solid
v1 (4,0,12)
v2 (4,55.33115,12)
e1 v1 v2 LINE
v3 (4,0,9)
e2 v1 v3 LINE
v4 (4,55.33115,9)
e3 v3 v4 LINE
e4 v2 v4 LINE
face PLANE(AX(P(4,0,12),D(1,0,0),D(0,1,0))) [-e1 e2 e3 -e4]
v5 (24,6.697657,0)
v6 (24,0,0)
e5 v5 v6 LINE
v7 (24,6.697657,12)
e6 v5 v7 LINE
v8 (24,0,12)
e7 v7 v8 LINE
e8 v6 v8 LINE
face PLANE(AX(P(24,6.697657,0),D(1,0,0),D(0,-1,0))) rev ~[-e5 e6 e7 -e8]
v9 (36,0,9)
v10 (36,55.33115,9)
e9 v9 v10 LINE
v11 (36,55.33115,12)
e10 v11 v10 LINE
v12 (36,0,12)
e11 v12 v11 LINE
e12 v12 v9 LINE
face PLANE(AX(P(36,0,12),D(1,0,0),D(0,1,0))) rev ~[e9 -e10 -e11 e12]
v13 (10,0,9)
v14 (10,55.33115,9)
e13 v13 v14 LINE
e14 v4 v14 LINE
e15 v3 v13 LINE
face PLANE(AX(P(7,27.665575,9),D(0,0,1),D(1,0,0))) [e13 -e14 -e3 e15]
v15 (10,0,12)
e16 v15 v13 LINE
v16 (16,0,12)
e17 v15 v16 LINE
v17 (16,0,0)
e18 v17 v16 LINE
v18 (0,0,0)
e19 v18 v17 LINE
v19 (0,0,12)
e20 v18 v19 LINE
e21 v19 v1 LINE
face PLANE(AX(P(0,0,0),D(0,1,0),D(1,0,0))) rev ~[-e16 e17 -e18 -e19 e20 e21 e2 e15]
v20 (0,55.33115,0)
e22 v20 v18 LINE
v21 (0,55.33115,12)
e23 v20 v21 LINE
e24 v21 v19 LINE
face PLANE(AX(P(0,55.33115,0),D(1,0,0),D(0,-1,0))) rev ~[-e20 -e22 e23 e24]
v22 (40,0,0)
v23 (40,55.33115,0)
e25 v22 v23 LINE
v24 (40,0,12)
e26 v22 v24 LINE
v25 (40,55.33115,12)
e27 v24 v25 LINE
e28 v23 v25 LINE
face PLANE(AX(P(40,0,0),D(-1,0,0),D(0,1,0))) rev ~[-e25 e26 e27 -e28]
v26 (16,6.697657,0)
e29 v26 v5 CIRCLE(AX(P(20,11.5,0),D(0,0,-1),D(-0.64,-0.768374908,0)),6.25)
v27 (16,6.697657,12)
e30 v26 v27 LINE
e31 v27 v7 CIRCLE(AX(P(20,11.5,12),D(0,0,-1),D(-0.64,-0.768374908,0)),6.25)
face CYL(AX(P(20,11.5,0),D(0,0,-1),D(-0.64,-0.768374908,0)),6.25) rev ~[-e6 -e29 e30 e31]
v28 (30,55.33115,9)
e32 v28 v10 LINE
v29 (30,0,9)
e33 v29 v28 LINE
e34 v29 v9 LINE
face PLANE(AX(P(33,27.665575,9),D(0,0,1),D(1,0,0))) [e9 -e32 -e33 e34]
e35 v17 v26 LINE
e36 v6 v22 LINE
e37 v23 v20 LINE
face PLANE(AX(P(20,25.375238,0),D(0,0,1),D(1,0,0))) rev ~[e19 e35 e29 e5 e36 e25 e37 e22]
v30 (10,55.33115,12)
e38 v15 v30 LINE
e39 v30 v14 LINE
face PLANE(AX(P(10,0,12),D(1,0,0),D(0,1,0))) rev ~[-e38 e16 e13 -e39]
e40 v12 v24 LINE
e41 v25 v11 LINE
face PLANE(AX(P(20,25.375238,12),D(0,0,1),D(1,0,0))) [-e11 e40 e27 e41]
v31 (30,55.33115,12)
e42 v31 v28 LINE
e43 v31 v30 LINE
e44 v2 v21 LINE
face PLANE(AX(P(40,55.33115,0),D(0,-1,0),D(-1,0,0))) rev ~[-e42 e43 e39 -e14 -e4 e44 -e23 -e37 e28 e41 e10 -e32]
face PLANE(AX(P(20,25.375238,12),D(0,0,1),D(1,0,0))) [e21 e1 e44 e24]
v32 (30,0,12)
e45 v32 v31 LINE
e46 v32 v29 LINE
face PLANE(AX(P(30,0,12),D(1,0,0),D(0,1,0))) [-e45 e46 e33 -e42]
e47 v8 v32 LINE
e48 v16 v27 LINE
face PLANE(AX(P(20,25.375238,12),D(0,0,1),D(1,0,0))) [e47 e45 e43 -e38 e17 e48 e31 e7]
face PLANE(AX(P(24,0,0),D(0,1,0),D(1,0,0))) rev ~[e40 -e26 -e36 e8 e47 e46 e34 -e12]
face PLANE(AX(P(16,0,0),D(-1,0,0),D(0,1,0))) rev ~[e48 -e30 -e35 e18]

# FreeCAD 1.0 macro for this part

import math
import FreeCAD as App
import Part
import Sketcher

doc = App.newDocument("Part")
body = doc.addObject("PartDesign::Body", "Body")

# Sketch on XY plane
sketch1 = doc.addObject("Sketcher::SketchObject", "Sketch")
body.addObject(sketch1)
sketch1.AttachmentSupport = (doc.XY_Plane, [""])
sketch1.MapMode = "FlatFace"
sketch1.addGeometry([
    Part.LineSegment(App.Vector(0, 55, 0), App.Vector(0, 0, 0)),  # 0
    Part.LineSegment(App.Vector(0, 0, 0), App.Vector(16, 0, 0)),  # 1
    Part.LineSegment(App.Vector(16, 0, 0), App.Vector(16, 7, 0)),  # 2
    Part.ArcOfCircle(Part.Circle(App.Vector(20, 12, 0), App.Vector(0, 0, 1), 6), math.radians(-50), math.radians(230)),  # 3
    Part.LineSegment(App.Vector(24, 7, 0), App.Vector(24, 0, 0)),  # 4
    Part.LineSegment(App.Vector(24, 0, 0), App.Vector(40, 0, 0)),  # 5
    Part.LineSegment(App.Vector(40, 0, 0), App.Vector(40, 55, 0)),  # 6
    Part.LineSegment(App.Vector(40, 55, 0), App.Vector(0, 55, 0)),  # 7
], False)
sketch1.addConstraint([
    Sketcher.Constraint("Coincident", 0, 2, 1, 1),
    Sketcher.Constraint("Coincident", 1, 2, 2, 1),
    Sketcher.Constraint("Coincident", 2, 2, 3, 2),
    Sketcher.Constraint("Coincident", 3, 1, 4, 1),
    Sketcher.Constraint("Coincident", 4, 2, 5, 1),
    Sketcher.Constraint("Coincident", 5, 2, 6, 1),
    Sketcher.Constraint("Coincident", 6, 2, 7, 1),
    Sketcher.Constraint("Coincident", 7, 2, 0, 1),
    Sketcher.Constraint("Vertical", 0),
    Sketcher.Constraint("Horizontal", 1),
    Sketcher.Constraint("Vertical", 2),
    Sketcher.Constraint("Vertical", 4),
    Sketcher.Constraint("Horizontal", 5),
    Sketcher.Constraint("Vertical", 6),
    Sketcher.Constraint("Horizontal", 7),
    Sketcher.Constraint("Coincident", 0, 2, -1, 1),
    Sketcher.Constraint("PointOnObject", 4, 2, -1),
    Sketcher.Constraint("Horizontal", 2, 2, 3, 1),
    Sketcher.Constraint("Equal", 1, 5),
    Sketcher.Constraint("DistanceX", 1, 1, 1, 2, 16.0),
    Sketcher.Constraint("DistanceX", 7, 2, 7, 1, 40.0),
    Sketcher.Constraint("Radius", 3, 6.25),
    Sketcher.Constraint("DistanceY", -1, 1, 3, 3, 11.5),
    Sketcher.Constraint("DistanceY", 0, 2, 0, 1, 55.33115),
])
pad1 = doc.addObject("PartDesign::Pad", "Pad")
body.addObject(pad1)
pad1.Profile = sketch1
pad1.Length = 12

# Sketch on XY plane
sketch2 = doc.addObject("Sketcher::SketchObject", "Sketch001")
body.addObject(sketch2)
sketch2.AttachmentSupport = (doc.XY_Plane, [""])
sketch2.MapMode = "FlatFace"
sketch2.AttachmentOffset = App.Placement(App.Vector(0, 0, 12), App.Rotation())
sketch2.addGeometry([
    Part.LineSegment(App.Vector(4, 55, 0), App.Vector(4, 0, 0)),  # 0
    Part.LineSegment(App.Vector(4, 0, 0), App.Vector(10, 0, 0)),  # 1
    Part.LineSegment(App.Vector(10, 0, 0), App.Vector(10, 55, 0)),  # 2
    Part.LineSegment(App.Vector(10, 55, 0), App.Vector(4, 55, 0)),  # 3
    Part.LineSegment(App.Vector(30, 55, 0), App.Vector(30, 0, 0)),  # 4
    Part.LineSegment(App.Vector(30, 0, 0), App.Vector(36, 0, 0)),  # 5
    Part.LineSegment(App.Vector(36, 0, 0), App.Vector(36, 55, 0)),  # 6
    Part.LineSegment(App.Vector(36, 55, 0), App.Vector(30, 55, 0)),  # 7
], False)
sketch2.addConstraint([
    Sketcher.Constraint("Coincident", 0, 2, 1, 1),
    Sketcher.Constraint("Coincident", 1, 2, 2, 1),
    Sketcher.Constraint("Coincident", 2, 2, 3, 1),
    Sketcher.Constraint("Coincident", 3, 2, 0, 1),
    Sketcher.Constraint("Coincident", 4, 2, 5, 1),
    Sketcher.Constraint("Coincident", 5, 2, 6, 1),
    Sketcher.Constraint("Coincident", 6, 2, 7, 1),
    Sketcher.Constraint("Coincident", 7, 2, 4, 1),
    Sketcher.Constraint("Vertical", 0),
    Sketcher.Constraint("Horizontal", 1),
    Sketcher.Constraint("Vertical", 2),
    Sketcher.Constraint("Horizontal", 3),
    Sketcher.Constraint("Vertical", 4),
    Sketcher.Constraint("Horizontal", 5),
    Sketcher.Constraint("Vertical", 6),
    Sketcher.Constraint("Horizontal", 7),
    Sketcher.Constraint("PointOnObject", 0, 2, -1),
    Sketcher.Constraint("PointOnObject", 4, 2, -1),
    Sketcher.Constraint("Horizontal", 3, 2, 6, 2),
    Sketcher.Constraint("Equal", 3, 5),
    Sketcher.Constraint("DistanceX", 1, 1, 1, 2, 6.0),
    Sketcher.Constraint("DistanceX", -1, 1, 0, 2, 4.0),
    Sketcher.Constraint("DistanceX", -1, 1, 4, 2, 30.0),
    Sketcher.Constraint("DistanceY", 0, 2, 0, 1, 55.33115),
])
pocket1 = doc.addObject("PartDesign::Pocket", "Pocket")
body.addObject(pocket1)
pocket1.Profile = sketch2
pocket1.Length = 3

doc.recompute()
